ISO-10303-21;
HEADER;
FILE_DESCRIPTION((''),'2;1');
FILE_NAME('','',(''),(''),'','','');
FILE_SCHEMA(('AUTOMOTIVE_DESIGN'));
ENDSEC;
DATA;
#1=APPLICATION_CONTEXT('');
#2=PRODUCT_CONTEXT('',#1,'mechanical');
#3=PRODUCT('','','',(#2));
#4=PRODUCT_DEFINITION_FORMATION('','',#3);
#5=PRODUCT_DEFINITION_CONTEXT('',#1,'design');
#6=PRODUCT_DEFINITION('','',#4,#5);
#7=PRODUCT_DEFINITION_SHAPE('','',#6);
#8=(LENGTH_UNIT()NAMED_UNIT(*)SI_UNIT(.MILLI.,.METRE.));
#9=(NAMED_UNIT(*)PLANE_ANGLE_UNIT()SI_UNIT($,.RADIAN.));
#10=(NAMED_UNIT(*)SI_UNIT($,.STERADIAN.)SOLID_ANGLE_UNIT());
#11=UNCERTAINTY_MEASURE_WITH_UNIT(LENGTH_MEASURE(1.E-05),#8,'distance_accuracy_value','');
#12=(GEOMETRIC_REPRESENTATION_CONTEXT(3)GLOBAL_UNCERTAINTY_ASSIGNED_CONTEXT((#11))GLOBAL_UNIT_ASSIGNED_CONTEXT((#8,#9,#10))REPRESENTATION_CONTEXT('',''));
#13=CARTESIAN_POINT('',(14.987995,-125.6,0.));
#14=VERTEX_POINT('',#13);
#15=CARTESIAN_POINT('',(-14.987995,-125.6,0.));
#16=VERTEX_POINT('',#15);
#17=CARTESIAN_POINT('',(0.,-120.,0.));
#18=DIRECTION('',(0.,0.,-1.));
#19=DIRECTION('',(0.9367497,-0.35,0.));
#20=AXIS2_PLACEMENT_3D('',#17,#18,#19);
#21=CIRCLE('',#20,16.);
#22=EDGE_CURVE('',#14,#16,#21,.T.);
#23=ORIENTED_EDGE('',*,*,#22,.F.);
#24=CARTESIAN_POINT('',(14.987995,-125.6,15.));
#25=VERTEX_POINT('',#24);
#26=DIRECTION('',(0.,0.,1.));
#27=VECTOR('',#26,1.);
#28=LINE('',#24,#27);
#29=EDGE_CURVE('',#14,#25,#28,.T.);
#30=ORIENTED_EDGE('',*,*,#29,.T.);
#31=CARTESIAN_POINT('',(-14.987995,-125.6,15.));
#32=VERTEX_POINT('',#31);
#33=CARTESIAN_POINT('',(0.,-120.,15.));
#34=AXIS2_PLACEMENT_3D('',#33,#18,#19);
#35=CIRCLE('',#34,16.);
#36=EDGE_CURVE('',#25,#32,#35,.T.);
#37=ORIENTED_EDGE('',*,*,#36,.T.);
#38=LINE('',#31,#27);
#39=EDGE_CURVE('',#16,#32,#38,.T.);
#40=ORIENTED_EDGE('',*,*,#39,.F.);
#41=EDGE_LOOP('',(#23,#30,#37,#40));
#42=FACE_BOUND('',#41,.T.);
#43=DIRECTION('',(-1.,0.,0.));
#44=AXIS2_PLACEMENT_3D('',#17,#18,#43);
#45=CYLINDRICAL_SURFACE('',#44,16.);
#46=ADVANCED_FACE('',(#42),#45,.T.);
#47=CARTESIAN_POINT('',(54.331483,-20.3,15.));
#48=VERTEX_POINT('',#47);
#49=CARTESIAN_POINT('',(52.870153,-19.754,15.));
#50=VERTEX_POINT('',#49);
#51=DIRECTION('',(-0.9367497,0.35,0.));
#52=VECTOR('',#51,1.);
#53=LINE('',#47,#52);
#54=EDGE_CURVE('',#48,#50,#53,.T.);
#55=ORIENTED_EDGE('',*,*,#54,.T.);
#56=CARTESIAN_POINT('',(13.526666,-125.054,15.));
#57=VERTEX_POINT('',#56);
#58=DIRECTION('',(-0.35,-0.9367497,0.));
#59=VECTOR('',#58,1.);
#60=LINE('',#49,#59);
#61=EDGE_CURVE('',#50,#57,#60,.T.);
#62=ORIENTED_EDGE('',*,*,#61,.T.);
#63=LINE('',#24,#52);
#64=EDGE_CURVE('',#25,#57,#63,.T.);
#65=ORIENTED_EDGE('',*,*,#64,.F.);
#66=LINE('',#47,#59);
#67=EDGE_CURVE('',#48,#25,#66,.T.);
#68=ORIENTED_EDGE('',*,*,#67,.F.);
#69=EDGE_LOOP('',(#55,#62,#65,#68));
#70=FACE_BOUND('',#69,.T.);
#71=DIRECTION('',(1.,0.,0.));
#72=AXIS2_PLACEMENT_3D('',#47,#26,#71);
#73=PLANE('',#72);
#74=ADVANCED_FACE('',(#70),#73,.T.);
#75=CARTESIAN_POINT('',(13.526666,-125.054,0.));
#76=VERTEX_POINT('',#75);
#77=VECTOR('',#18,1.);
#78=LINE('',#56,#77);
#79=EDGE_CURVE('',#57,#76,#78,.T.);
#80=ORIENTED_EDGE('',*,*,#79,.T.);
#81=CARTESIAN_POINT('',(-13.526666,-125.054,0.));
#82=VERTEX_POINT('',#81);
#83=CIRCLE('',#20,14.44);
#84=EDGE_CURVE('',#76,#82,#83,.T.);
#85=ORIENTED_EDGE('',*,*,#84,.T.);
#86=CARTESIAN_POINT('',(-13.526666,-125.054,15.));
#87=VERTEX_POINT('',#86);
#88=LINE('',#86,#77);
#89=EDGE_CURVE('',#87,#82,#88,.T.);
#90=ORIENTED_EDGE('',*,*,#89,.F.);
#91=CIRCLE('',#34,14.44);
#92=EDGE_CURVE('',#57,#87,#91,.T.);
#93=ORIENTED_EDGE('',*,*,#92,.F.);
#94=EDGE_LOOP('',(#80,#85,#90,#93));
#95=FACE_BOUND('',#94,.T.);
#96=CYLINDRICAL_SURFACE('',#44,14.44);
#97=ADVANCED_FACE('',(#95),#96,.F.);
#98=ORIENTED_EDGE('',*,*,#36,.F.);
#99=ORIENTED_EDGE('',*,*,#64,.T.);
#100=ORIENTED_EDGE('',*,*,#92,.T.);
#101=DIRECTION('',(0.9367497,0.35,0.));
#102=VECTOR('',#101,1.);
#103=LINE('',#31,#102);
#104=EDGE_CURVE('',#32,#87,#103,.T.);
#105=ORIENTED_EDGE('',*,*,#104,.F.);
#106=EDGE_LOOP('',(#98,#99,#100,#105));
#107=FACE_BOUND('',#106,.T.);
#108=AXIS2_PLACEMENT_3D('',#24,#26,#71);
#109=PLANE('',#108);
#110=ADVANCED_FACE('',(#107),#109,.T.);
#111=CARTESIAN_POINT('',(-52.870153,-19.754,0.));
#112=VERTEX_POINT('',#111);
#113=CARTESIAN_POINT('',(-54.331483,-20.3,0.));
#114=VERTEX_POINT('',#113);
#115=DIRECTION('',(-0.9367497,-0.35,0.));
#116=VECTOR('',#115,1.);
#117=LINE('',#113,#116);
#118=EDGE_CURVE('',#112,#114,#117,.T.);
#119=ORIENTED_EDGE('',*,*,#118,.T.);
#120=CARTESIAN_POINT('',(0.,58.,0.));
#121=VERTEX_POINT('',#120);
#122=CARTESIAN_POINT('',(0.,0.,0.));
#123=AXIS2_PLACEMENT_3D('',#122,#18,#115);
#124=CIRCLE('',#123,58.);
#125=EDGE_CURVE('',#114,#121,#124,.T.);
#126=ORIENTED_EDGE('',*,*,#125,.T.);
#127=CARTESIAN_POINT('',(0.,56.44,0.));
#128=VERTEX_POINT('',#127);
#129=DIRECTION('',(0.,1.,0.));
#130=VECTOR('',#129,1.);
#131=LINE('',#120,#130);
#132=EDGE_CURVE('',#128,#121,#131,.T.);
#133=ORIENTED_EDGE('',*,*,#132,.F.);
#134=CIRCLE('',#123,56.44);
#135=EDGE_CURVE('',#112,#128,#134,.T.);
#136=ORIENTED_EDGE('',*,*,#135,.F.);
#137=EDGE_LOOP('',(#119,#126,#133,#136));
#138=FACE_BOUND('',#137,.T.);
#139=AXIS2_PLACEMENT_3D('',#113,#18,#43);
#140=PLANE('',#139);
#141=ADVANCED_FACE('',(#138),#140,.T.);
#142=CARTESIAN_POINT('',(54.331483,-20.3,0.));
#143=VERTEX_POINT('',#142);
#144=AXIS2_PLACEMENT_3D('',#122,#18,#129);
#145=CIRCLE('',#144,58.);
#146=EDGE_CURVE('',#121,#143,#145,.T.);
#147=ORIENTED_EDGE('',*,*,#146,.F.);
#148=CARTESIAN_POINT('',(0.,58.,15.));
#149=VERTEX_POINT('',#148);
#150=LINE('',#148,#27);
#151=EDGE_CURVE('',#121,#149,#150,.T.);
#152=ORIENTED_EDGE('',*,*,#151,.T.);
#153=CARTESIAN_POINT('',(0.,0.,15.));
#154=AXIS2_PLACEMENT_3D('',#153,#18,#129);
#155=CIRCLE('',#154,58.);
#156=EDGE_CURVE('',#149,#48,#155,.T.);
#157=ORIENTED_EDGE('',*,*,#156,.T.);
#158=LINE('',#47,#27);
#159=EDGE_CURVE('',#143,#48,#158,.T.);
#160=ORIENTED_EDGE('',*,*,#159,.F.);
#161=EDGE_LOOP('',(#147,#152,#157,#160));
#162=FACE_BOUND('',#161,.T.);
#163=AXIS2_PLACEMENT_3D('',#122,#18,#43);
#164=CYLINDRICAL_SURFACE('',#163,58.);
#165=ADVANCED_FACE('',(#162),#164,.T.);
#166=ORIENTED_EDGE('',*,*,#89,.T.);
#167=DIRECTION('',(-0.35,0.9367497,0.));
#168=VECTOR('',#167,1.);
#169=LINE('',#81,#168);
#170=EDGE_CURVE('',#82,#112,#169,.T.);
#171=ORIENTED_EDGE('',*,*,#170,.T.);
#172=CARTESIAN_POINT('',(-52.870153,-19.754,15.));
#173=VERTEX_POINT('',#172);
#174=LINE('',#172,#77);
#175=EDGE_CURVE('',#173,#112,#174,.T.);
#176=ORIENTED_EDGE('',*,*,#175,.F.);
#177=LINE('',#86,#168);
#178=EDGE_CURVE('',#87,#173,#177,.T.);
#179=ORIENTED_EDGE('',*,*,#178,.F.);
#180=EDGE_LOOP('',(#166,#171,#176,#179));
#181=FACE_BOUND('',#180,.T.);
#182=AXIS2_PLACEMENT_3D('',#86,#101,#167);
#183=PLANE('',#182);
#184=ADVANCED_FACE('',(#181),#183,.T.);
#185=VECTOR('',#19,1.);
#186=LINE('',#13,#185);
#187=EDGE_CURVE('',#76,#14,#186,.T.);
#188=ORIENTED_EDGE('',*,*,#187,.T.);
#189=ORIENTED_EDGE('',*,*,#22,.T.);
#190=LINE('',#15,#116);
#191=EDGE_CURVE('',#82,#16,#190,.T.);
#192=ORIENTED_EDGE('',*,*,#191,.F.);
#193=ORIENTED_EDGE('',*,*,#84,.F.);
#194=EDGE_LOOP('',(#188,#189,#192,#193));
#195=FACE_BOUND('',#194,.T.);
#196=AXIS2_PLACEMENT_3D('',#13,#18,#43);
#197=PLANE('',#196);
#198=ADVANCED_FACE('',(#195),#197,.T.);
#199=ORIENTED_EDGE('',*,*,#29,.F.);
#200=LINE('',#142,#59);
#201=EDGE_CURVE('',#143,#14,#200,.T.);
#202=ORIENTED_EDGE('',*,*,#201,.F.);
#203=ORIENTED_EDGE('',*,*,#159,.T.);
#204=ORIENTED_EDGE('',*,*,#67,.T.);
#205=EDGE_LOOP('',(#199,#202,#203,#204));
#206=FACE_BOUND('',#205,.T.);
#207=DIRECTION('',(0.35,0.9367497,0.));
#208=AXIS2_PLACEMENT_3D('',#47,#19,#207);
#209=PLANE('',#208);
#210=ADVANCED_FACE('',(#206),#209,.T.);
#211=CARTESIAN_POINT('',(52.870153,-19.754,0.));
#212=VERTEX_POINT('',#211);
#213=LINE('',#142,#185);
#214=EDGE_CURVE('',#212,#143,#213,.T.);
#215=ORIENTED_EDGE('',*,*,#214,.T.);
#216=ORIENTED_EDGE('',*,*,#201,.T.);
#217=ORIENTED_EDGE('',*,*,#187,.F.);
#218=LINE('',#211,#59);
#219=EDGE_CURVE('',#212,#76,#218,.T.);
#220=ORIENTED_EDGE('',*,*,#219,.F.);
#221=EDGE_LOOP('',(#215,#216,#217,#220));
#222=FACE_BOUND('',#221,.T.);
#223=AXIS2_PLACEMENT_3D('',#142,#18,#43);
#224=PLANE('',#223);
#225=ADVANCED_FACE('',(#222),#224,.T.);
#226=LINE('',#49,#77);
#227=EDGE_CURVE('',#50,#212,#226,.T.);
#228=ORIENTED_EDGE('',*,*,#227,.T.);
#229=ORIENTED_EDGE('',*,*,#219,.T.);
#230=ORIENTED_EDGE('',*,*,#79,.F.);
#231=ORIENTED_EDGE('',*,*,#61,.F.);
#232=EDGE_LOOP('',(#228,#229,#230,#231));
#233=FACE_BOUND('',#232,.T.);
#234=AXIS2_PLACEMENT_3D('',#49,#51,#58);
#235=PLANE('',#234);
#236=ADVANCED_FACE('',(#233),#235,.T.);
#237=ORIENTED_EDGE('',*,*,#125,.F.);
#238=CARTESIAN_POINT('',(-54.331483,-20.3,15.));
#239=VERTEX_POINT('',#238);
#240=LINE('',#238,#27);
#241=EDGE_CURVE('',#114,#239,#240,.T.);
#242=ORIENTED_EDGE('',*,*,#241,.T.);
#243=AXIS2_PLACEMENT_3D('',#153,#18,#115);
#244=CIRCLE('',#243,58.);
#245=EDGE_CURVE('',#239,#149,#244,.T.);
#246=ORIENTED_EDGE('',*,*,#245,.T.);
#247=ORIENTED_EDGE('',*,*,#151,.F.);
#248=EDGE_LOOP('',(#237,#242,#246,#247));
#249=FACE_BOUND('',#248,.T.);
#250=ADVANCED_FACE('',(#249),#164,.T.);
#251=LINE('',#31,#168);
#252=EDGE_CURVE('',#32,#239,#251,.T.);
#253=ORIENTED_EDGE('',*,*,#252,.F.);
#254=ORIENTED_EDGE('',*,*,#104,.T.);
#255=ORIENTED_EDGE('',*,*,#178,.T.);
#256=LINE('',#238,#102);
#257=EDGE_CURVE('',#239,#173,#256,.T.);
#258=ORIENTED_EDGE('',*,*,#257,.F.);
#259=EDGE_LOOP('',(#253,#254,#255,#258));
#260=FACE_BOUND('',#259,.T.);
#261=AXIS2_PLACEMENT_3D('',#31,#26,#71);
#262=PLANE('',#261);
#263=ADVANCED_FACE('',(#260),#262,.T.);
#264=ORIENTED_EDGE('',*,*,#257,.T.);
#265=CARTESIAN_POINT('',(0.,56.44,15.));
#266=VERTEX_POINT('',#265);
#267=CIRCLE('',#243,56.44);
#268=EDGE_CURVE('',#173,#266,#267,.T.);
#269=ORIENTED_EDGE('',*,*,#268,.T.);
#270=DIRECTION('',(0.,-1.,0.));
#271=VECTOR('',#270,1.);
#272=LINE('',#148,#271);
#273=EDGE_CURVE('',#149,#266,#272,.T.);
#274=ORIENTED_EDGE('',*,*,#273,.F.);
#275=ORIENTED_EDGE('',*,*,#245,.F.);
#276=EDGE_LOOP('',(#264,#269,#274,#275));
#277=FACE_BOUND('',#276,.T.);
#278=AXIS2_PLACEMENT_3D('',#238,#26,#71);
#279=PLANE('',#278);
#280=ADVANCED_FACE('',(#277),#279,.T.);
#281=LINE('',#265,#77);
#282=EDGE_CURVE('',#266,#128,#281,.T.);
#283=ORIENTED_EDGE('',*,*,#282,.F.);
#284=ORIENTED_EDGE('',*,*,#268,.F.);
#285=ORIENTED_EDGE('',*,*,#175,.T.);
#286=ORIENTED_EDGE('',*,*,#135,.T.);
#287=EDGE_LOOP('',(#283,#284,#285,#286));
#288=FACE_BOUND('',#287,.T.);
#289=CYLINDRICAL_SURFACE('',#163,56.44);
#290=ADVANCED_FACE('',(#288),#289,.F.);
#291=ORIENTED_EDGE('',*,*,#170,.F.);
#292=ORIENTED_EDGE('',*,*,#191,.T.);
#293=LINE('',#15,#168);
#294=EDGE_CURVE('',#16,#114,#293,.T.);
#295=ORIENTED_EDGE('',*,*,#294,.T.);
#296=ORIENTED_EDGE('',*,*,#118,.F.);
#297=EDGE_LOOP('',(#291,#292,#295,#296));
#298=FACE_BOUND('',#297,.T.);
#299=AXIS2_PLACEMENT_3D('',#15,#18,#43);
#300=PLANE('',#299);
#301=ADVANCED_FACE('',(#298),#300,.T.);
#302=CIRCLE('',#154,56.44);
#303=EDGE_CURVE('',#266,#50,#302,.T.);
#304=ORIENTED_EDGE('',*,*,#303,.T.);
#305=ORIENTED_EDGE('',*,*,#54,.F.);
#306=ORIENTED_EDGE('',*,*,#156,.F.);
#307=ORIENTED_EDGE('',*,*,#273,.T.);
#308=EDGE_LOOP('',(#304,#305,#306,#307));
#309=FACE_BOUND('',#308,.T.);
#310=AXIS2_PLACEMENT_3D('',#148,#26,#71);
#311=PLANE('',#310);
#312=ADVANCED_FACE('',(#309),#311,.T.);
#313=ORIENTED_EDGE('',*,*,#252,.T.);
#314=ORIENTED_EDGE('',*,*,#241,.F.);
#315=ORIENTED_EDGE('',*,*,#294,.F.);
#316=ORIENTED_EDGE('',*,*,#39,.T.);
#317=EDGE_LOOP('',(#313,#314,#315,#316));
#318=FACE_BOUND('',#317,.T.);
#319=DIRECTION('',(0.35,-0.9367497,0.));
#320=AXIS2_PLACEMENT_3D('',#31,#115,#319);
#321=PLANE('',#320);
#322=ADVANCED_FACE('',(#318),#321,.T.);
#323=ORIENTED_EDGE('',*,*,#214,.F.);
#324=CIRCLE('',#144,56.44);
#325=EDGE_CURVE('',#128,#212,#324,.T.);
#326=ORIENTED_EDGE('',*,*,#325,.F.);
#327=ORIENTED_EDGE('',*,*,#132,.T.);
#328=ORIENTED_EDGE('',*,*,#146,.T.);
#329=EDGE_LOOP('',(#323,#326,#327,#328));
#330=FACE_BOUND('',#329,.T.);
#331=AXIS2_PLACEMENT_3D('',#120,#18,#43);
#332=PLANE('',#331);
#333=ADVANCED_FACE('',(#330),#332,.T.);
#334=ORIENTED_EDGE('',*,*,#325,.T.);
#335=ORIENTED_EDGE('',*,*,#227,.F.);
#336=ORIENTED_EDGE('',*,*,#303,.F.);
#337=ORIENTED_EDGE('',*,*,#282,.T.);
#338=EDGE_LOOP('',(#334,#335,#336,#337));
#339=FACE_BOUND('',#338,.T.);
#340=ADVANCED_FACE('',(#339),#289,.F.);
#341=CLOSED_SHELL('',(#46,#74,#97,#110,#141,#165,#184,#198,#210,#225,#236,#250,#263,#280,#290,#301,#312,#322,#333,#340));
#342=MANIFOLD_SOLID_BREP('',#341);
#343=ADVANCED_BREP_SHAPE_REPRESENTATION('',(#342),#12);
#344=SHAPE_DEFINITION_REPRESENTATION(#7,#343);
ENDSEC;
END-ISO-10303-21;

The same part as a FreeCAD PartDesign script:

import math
import FreeCAD as App
import Part
import Sketcher


def add_polygon(sketch, points):
    """Adds a closed chain of lines whose ends are joined by coincident constraints."""
    first, n = sketch.GeometryCount, len(points)
    for a, b in zip(points, points[1:] + points[:1]):
        sketch.addGeometry(Part.LineSegment(App.Vector(*a, 0), App.Vector(*b, 0)), False)
    for i in range(n):
        sketch.addConstraint(Sketcher.Constraint("Coincident", first + i, 2, first + (i + 1) % n, 1))

doc = App.newDocument("Part")
body = doc.addObject("PartDesign::Body", "Body")

# Sketch on YZ plane
sketch1 = doc.addObject("Sketcher::SketchObject", "Sketch")
body.addObject(sketch1)
sketch1.AttachmentSupport = (doc.YZ_Plane, [""])
sketch1.MapMode = "FlatFace"
add_polygon(sketch1, [(58, 15), (56.44, 15), (56.44, 0), (58, 0)])  # lines 0-3
sketch1.addConstraint([
    Sketcher.Constraint("Horizontal", 0),
    Sketcher.Constraint("Vertical", 1),
    Sketcher.Constraint("Horizontal", 2),
    Sketcher.Constraint("Vertical", 3),
    Sketcher.Constraint("PointOnObject", 1, 2, -1),
    Sketcher.Constraint("DistanceY", 1, 2, 1, 1, 15.0),
    Sketcher.Constraint("DistanceX", -1, 1, 2, 2, 58.0),
    Sketcher.Constraint("DistanceX", 0, 2, 0, 1, 1.56),
])

# Sketch on XY plane
sketch2 = doc.addObject("Sketcher::SketchObject", "Sketch001")
body.addObject(sketch2)
sketch2.AttachmentSupport = (doc.XY_Plane, [""])
sketch2.MapMode = "FlatFace"
sketch2.addGeometry([
    Part.LineSegment(App.Vector(-54.331483, -20.3, 0), App.Vector(-14.987995, -125.6, 0)),
    Part.ArcOfCircle(Part.Circle(App.Vector(0, -120, 0), App.Vector(0, 0, 1), 16), math.radians(-159.512685), math.radians(-20.487315)),
    Part.LineSegment(App.Vector(14.987995, -125.6, 0), App.Vector(54.331483, -20.3, 0)),
    Part.ArcOfCircle(Part.Circle(App.Vector(0, 0, 0), App.Vector(0, 0, 1), 58), math.radians(-20.487315), math.radians(200.487315)),
], False)
sketch2.addConstraint([
    Sketcher.Constraint("Tangent", 0, 2, 1, 1),
    Sketcher.Constraint("Tangent", 1, 2, 2, 1),
    Sketcher.Constraint("Tangent", 2, 2, 3, 1),
    Sketcher.Constraint("Tangent", 3, 2, 0, 1),
    Sketcher.Constraint("Coincident", 3, 3, -1, 1),
    Sketcher.Constraint("PointOnObject", 1, 3, -2),
    Sketcher.Constraint("Radius", 1, 16.0),
    Sketcher.Constraint("Radius", 3, 58.0),
    Sketcher.Constraint("DistanceY", 1, 3, -1, 1, 120.0),
])
doc.recompute()

additivepipe = doc.addObject("PartDesign::AdditivePipe", "AdditivePipe")
body.addObject(additivepipe)
additivepipe.Profile = sketch1
additivepipe.Spine = (sketch2, ["Edge1", "Edge2", "Edge3", "Edge4"])

doc.recompute()
